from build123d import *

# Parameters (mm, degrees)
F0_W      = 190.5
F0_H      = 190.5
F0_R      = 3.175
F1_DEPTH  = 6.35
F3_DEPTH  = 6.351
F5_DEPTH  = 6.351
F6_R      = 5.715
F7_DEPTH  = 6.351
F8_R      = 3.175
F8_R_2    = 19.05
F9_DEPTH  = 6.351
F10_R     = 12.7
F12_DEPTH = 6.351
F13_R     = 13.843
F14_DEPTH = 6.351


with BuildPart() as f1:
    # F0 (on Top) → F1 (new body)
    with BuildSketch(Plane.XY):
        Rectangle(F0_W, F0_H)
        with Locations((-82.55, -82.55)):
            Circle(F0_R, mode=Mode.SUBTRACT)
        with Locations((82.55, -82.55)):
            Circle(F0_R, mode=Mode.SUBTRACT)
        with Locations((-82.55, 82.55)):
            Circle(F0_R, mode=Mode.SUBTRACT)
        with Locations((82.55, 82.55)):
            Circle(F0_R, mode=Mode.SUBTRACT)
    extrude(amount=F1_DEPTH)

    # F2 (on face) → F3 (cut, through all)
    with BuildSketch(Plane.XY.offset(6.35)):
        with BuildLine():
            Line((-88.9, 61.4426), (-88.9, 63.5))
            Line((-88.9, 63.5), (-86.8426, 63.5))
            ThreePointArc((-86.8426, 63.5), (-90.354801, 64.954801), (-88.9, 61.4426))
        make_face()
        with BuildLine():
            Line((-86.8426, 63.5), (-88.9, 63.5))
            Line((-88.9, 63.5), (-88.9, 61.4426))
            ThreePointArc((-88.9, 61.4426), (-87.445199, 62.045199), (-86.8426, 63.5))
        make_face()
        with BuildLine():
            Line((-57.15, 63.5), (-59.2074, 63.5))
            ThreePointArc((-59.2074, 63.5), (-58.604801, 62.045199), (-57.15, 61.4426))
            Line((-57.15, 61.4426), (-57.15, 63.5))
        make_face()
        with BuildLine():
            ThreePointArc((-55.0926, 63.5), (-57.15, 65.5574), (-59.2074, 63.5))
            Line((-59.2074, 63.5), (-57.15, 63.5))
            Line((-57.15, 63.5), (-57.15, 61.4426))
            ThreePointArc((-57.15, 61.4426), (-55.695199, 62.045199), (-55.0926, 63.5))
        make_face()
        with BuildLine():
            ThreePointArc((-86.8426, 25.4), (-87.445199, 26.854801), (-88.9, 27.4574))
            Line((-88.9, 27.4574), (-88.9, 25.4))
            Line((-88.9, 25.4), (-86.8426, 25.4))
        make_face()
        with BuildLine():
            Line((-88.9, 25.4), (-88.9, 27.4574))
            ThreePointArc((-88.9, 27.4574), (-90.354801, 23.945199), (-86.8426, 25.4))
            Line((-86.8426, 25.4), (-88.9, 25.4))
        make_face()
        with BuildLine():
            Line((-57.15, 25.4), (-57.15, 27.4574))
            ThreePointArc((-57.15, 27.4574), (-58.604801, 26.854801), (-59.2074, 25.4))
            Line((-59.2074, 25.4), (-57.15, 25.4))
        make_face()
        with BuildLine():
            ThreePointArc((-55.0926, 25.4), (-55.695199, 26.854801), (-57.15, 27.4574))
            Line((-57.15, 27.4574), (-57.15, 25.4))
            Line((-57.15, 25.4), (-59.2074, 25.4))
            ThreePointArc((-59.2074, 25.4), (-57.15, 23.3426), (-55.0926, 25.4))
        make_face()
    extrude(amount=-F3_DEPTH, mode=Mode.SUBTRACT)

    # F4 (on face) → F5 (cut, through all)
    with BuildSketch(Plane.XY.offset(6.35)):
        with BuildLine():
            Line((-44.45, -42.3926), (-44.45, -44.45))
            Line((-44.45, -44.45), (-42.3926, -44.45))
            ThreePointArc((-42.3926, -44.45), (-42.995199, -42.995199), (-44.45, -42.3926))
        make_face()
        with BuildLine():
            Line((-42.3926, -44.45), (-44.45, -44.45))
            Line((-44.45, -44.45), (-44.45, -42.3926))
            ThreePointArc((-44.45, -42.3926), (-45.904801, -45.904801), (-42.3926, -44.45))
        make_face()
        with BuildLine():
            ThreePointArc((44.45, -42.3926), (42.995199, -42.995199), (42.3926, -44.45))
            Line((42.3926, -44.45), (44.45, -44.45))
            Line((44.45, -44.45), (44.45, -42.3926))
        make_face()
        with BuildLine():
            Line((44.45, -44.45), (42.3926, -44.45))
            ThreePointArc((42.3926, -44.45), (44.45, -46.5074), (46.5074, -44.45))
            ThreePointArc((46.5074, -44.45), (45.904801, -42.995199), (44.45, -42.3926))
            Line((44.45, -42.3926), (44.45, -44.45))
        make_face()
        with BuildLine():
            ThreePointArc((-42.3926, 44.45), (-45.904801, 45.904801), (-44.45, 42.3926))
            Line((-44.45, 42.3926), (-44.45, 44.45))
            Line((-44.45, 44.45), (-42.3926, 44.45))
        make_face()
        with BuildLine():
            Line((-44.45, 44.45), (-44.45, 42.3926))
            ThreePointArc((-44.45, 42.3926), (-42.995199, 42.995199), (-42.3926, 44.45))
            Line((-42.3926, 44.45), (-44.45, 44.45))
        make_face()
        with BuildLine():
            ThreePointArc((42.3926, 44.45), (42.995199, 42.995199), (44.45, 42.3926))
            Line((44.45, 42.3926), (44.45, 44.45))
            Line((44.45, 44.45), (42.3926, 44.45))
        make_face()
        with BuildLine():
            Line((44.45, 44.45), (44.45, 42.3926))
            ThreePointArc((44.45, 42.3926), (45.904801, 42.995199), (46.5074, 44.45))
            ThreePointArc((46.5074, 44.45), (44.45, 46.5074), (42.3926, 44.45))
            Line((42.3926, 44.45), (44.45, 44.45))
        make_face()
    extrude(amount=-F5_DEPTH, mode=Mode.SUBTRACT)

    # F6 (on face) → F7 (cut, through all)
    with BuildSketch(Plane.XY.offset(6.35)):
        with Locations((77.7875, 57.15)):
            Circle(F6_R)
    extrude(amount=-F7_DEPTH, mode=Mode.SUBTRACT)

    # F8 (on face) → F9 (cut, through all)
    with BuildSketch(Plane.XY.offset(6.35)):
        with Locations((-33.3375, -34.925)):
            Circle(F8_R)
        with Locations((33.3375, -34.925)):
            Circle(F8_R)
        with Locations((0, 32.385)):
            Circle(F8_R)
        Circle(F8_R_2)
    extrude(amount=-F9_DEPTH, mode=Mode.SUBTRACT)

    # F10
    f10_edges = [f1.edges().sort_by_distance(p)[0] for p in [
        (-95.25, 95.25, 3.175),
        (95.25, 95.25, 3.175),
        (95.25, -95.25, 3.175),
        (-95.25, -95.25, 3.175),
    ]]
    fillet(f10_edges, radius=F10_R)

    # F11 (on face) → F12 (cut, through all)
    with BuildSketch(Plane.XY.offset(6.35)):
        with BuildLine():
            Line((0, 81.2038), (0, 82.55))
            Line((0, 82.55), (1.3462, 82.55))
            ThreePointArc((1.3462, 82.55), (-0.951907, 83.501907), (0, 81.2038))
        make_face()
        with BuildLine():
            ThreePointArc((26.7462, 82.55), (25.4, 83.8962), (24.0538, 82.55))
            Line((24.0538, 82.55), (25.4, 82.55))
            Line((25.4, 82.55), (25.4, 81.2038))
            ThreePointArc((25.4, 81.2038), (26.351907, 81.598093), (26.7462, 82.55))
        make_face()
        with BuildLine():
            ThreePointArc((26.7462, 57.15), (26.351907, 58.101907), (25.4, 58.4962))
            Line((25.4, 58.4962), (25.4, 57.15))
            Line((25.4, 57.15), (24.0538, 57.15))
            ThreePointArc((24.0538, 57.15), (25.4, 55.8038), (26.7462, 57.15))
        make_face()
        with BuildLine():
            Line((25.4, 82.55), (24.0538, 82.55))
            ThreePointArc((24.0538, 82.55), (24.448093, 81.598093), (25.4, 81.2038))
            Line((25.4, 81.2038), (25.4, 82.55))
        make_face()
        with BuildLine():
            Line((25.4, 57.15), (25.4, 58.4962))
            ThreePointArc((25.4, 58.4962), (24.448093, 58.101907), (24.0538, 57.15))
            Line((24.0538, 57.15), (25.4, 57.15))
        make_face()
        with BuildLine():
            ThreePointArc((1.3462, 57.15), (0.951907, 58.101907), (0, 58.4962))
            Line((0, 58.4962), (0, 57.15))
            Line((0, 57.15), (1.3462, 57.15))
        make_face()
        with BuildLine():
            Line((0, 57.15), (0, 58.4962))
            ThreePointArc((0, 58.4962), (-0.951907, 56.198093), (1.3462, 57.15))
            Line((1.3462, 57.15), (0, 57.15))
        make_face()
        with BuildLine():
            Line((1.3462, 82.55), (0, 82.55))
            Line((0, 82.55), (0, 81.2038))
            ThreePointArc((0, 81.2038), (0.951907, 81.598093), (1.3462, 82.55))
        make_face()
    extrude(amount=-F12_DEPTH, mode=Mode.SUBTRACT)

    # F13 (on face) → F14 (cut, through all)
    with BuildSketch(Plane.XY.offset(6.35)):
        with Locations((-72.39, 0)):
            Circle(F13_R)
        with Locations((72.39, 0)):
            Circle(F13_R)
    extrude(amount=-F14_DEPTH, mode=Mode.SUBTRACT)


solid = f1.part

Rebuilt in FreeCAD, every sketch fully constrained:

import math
import FreeCAD as App
import Part
import Sketcher
Q = App.Units.Quantity


def edges_at(feature, points):
    """Names of the edges that pass closest to the given points."""
    edges = feature.Shape.Edges
    near = lambda p: min(range(len(edges)), key=lambda i: edges[i].distToShape(Part.Vertex(*p))[0])
    return sorted({f"Edge{near(p) + 1}" for p in points})


def add_polygon(sketch, points):
    """Adds a closed chain of lines whose ends are joined by coincident constraints."""
    first, n = sketch.GeometryCount, len(points)
    for a, b in zip(points, points[1:] + points[:1]):
        sketch.addGeometry(Part.LineSegment(App.Vector(*a, 0), App.Vector(*b, 0)), False)
    for i in range(n):
        sketch.addConstraint(Sketcher.Constraint("Coincident", first + i, 2, first + (i + 1) % n, 1))

doc = App.newDocument("Part")
body = doc.addObject("PartDesign::Body", "Body")

sketch1 = body.newObject("Sketcher::SketchObject", "Sketch")
sketch1.AttachmentSupport = (doc.getObject("XY_Plane"), [""])
sketch1.MapMode = "FlatFace"
add_polygon(sketch1, [(-95.2, 95.2), (-95.2, -95.2), (95.2, -95.2), (95.2, 95.2)])
sketch1.addGeometry(Part.Circle(App.Vector(-82.5, -82.5, 0), App.Vector(0, 0, 1), 3.2), False)
sketch1.addGeometry(Part.Circle(App.Vector(82.5, -82.5, 0), App.Vector(0, 0, 1), 3.2), False)
sketch1.addGeometry(Part.Circle(App.Vector(-82.5, 82.5, 0), App.Vector(0, 0, 1), 3.2), False)
sketch1.addGeometry(Part.Circle(App.Vector(82.5, 82.5, 0), App.Vector(0, 0, 1), 3.2), False)
sketch1.addConstraint(Sketcher.Constraint("Vertical", 0))
sketch1.addConstraint(Sketcher.Constraint("Horizontal", 1))
sketch1.addConstraint(Sketcher.Constraint("Vertical", 2))
sketch1.addConstraint(Sketcher.Constraint("Horizontal", 3))
sketch1.addConstraint(Sketcher.Constraint("Equal", 4, 5))
sketch1.addConstraint(Sketcher.Constraint("Equal", 5, 6))
sketch1.addConstraint(Sketcher.Constraint("Equal", 6, 7))
sketch1.addConstraint(Sketcher.Constraint("Symmetric", 5, 3, 6, 3, -1, 1))
sketch1.addConstraint(Sketcher.Constraint("Symmetric", 4, 3, 7, 3, -1, 1))
sketch1.addConstraint(Sketcher.Constraint("Symmetric", 0, 2, 2, 2, -1, 1))
sketch1.addConstraint(Sketcher.Constraint("Symmetric", 4, 3, 5, 3, -2))
sketch1.addConstraint(Sketcher.Constraint("Equal", 3, 0))
sketch1.addConstraint(Sketcher.Constraint("Diameter", 4, Q("0.25 in")))
sketch1.addConstraint(Sketcher.Constraint("DistanceX", 1, 1, 1, 2, Q("7.5 in")))
sketch1.addConstraint(Sketcher.Constraint("DistanceX", 0, 2, 5, 3, Q("7 in")))
sketch1.addConstraint(Sketcher.Constraint("DistanceY", 0, 2, 6, 3, Q("7 in")))
pad1 = body.newObject("PartDesign::Pad", "Pad")
pad1.Profile = sketch1
pad1.Length = Q("0.25 in")

sketch2 = body.newObject("Sketcher::SketchObject", "Sketch001")
sketch2.AttachmentSupport = (doc.getObject("XY_Plane"), [""])
sketch2.MapMode = "FlatFace"
sketch2.AttachmentOffset = App.Placement(App.Vector(0, 0, 0.25 * 25.4), App.Rotation())
sketch2.addGeometry(Part.ArcOfCircle(Part.Circle(App.Vector(-88.9, 63.5, 0), App.Vector(0, 0, 1), 2.1), math.radians(0), math.radians(270)), False)
sketch2.addGeometry(Part.ArcOfCircle(Part.Circle(App.Vector(-88.9, 63.5, 0), App.Vector(0, 0, 1), 2.1), math.radians(-90), math.radians(0)), False)
sketch2.addGeometry(Part.ArcOfCircle(Part.Circle(App.Vector(-57.1, 63.5, 0), App.Vector(0, 0, 1), 2.1), math.radians(-180), math.radians(-90)), False)
sketch2.addGeometry(Part.ArcOfCircle(Part.Circle(App.Vector(-57.2, 63.5, 0), App.Vector(0, 0, 1), 2.1), math.radians(-90), math.radians(0)), False)
sketch2.addGeometry(Part.ArcOfCircle(Part.Circle(App.Vector(-57.1, 63.5, 0), App.Vector(0, 0, 1), 2.1), math.radians(0), math.radians(180)), False)
sketch2.addGeometry(Part.ArcOfCircle(Part.Circle(App.Vector(-88.9, 25.4, 0), App.Vector(0, 0, 1), 2.1), math.radians(0), math.radians(90)), False)
sketch2.addGeometry(Part.ArcOfCircle(Part.Circle(App.Vector(-88.9, 25.4, 0), App.Vector(0, 0, 1), 2.1), math.radians(90), math.radians(360)), False)
sketch2.addGeometry(Part.ArcOfCircle(Part.Circle(App.Vector(-57.1, 25.4, 0), App.Vector(0, 0, 1), 2.1), math.radians(90), math.radians(180)), False)
sketch2.addGeometry(Part.ArcOfCircle(Part.Circle(App.Vector(-57.1, 25.4, 0), App.Vector(0, 0, 1), 2.1), math.radians(180), math.radians(360)), False)
sketch2.addGeometry(Part.ArcOfCircle(Part.Circle(App.Vector(-57.2, 25.4, 0), App.Vector(0, 0, 1), 2.1), math.radians(0), math.radians(90)), False)
sketch2.addConstraint(Sketcher.Constraint("Tangent", 0, 1, 1, 2))
sketch2.addConstraint(Sketcher.Constraint("Coincident", 1, 1, 0, 2))
sketch2.addConstraint(Sketcher.Constraint("Tangent", 2, 2, 3, 1))
sketch2.addConstraint(Sketcher.Constraint("Tangent", 3, 2, 4, 1))
sketch2.addConstraint(Sketcher.Constraint("Tangent", 4, 2, 2, 1))
sketch2.addConstraint(Sketcher.Constraint("Tangent", 5, 1, 6, 2))
sketch2.addConstraint(Sketcher.Constraint("Coincident", 6, 1, 5, 2))
sketch2.addConstraint(Sketcher.Constraint("Tangent", 7, 2, 8, 1))
sketch2.addConstraint(Sketcher.Constraint("Tangent", 8, 2, 9, 1))
sketch2.addConstraint(Sketcher.Constraint("Tangent", 9, 2, 7, 1))
sketch2.addConstraint(Sketcher.Constraint("Equal", 1, 2))
sketch2.addConstraint(Sketcher.Constraint("Equal", 4, 5))
sketch2.addConstraint(Sketcher.Constraint("Equal", 6, 7))
sketch2.addConstraint(Sketcher.Constraint("Horizontal", 1, 3, 2, 3))
sketch2.addConstraint(Sketcher.Constraint("Horizontal", 6, 3, 7, 3))
sketch2.addConstraint(Sketcher.Constraint("Horizontal", 4, 3, 0, 1))
sketch2.addConstraint(Sketcher.Constraint("Horizontal", 0, 1, 3, 2))
sketch2.addConstraint(Sketcher.Constraint("Horizontal", 3, 2, 4, 2))
sketch2.addConstraint(Sketcher.Constraint("Horizontal", 9, 3, 5, 1))
sketch2.addConstraint(Sketcher.Constraint("Horizontal", 5, 1, 7, 2))
sketch2.addConstraint(Sketcher.Constraint("Horizontal", 7, 2, 8, 2))
sketch2.addConstraint(Sketcher.Constraint("Vertical", 1, 3, 5, 3))
sketch2.addConstraint(Sketcher.Constraint("Vertical", 4, 3, 7, 3))
sketch2.addConstraint(Sketcher.Constraint("Vertical", 6, 3, 1, 1))
sketch2.addConstraint(Sketcher.Constraint("Vertical", 9, 3, 2, 2))
sketch2.addConstraint(Sketcher.Constraint("Vertical", 1, 1, 6, 1))
sketch2.addConstraint(Sketcher.Constraint("Vertical", 2, 2, 9, 2))
sketch2.addConstraint(Sketcher.Constraint("DistanceY", -1, 1, 5, 3, Q("0.9999999 in")))
sketch2.addConstraint(Sketcher.Constraint("Radius", 0, Q("0.081 in")))
sketch2.addConstraint(Sketcher.Constraint("DistanceX", 0, 3, -1, 1, Q("3.5 in")))
sketch2.addConstraint(Sketcher.Constraint("DistanceY", -1, 1, 0, 3, Q("2.5 in")))
sketch2.addConstraint(Sketcher.Constraint("DistanceX", 2, 3, -1, 1, Q("2.2499999 in")))
pocket1 = body.newObject("PartDesign::Pocket", "Pocket")
pocket1.Profile = sketch2
pocket1.Type = "ThroughAll"

sketch3 = body.newObject("Sketcher::SketchObject", "Sketch002")
sketch3.AttachmentSupport = (doc.getObject("XY_Plane"), [""])
sketch3.MapMode = "FlatFace"
sketch3.AttachmentOffset = App.Placement(App.Vector(0, 0, 0.25 * 25.4), App.Rotation())
sketch3.addGeometry(Part.ArcOfCircle(Part.Circle(App.Vector(-44.5, -44.5, 0), App.Vector(0, 0, 1), 2.1), math.radians(0), math.radians(90)), False)
sketch3.addGeometry(Part.ArcOfCircle(Part.Circle(App.Vector(-44.4, -44.4, 0), App.Vector(0, 0, 1), 2.1), math.radians(90), math.radians(360)), False)
sketch3.addGeometry(Part.ArcOfCircle(Part.Circle(App.Vector(44.5, -44.5, 0), App.Vector(0, 0, 1), 2.1), math.radians(90), math.radians(180)), False)
sketch3.addGeometry(Part.ArcOfCircle(Part.Circle(App.Vector(44.5, -44.5, 0), App.Vector(0, 0, 1), 2.1), math.radians(180), math.radians(360)), False)
sketch3.addGeometry(Part.ArcOfCircle(Part.Circle(App.Vector(44.4, -44.5, 0), App.Vector(0, 0, 1), 2.1), math.radians(0), math.radians(90)), False)
sketch3.addGeometry(Part.ArcOfCircle(Part.Circle(App.Vector(-44.4, 44.4, 0), App.Vector(0, 0, 1), 2.1), math.radians(0), math.radians(270)), False)
sketch3.addGeometry(Part.ArcOfCircle(Part.Circle(App.Vector(-44.5, 44.5, 0), App.Vector(0, 0, 1), 2.1), math.radians(-90), math.radians(0)), False)
sketch3.addGeometry(Part.ArcOfCircle(Part.Circle(App.Vector(44.5, 44.5, 0), App.Vector(0, 0, 1), 2.1), math.radians(-180), math.radians(-90)), False)
sketch3.addGeometry(Part.ArcOfCircle(Part.Circle(App.Vector(44.4, 44.5, 0), App.Vector(0, 0, 1), 2.1), math.radians(-90), math.radians(0)), False)
sketch3.addGeometry(Part.ArcOfCircle(Part.Circle(App.Vector(44.5, 44.5, 0), App.Vector(0, 0, 1), 2.1), math.radians(0), math.radians(180)), False)
sketch3.addConstraint(Sketcher.Constraint("Tangent", 0, 1, 1, 2))
sketch3.addConstraint(Sketcher.Constraint("Coincident", 1, 1, 0, 2))
sketch3.addConstraint(Sketcher.Constraint("Tangent", 2, 2, 3, 1))
sketch3.addConstraint(Sketcher.Constraint("Tangent", 3, 2, 4, 1))
sketch3.addConstraint(Sketcher.Constraint("Tangent", 4, 2, 2, 1))
sketch3.addConstraint(Sketcher.Constraint("Tangent", 5, 1, 6, 2))
sketch3.addConstraint(Sketcher.Constraint("Coincident", 6, 1, 5, 2))
sketch3.addConstraint(Sketcher.Constraint("Tangent", 7, 2, 8, 1))
sketch3.addConstraint(Sketcher.Constraint("Tangent", 8, 2, 9, 1))
sketch3.addConstraint(Sketcher.Constraint("Tangent", 9, 2, 7, 1))
sketch3.addConstraint(Sketcher.Constraint("Equal", 1, 2))
sketch3.addConstraint(Sketcher.Constraint("Equal", 4, 5))
sketch3.addConstraint(Sketcher.Constraint("Equal", 6, 7))
sketch3.addConstraint(Sketcher.Constraint("Symmetric", 2, 3, 5, 3, -1, 1))
sketch3.addConstraint(Sketcher.Constraint("Symmetric", 0, 3, 7, 3, -1, 1))
sketch3.addConstraint(Sketcher.Constraint("Symmetric", 0, 3, 2, 3, -2))
sketch3.addConstraint(Sketcher.Constraint("Horizontal", 4, 3, 0, 1))
sketch3.addConstraint(Sketcher.Constraint("Horizontal", 0, 1, 2, 2))
sketch3.addConstraint(Sketcher.Constraint("Horizontal", 2, 2, 3, 2))
sketch3.addConstraint(Sketcher.Constraint("Horizontal", 9, 3, 5, 1))
sketch3.addConstraint(Sketcher.Constraint("Horizontal", 5, 1, 8, 2))
sketch3.addConstraint(Sketcher.Constraint("Horizontal", 8, 2, 9, 2))
sketch3.addConstraint(Sketcher.Constraint("Vertical", 6, 3, 1, 1))
sketch3.addConstraint(Sketcher.Constraint("Vertical", 9, 3, 4, 2))
sketch3.addConstraint(Sketcher.Constraint("Vertical", 1, 1, 6, 1))
sketch3.addConstraint(Sketcher.Constraint("Vertical", 4, 2, 7, 2))
sketch3.addConstraint(Sketcher.Constraint("Radius", 0, Q("0.0810001 in")))
sketch3.addConstraint(Sketcher.Constraint("DistanceX", 1, 3, 2, 3, Q("3.5000001 in")))
sketch3.addConstraint(Sketcher.Constraint("DistanceY", 1, 3, 5, 3, Q("3.5 in")))
pocket2 = body.newObject("PartDesign::Pocket", "Pocket001")
pocket2.Profile = sketch3
pocket2.Type = "ThroughAll"

sketch4 = body.newObject("Sketcher::SketchObject", "Sketch003")
sketch4.AttachmentSupport = (doc.getObject("XY_Plane"), [""])
sketch4.MapMode = "FlatFace"
sketch4.AttachmentOffset = App.Placement(App.Vector(0, 0, 0.25 * 25.4), App.Rotation())
sketch4.addGeometry(Part.Circle(App.Vector(78, 57, 0), App.Vector(0, 0, 1), 6), False)
sketch4.addConstraint(Sketcher.Constraint("Diameter", 0, Q("0.45 in")))
sketch4.addConstraint(Sketcher.Constraint("DistanceY", -1, 1, 0, 3, Q("2.25 in")))
sketch4.addConstraint(Sketcher.Constraint("DistanceX", -1, 1, 0, 3, Q("3.0625 in")))
pocket3 = body.newObject("PartDesign::Pocket", "Pocket002")
pocket3.Profile = sketch4
pocket3.Type = "ThroughAll"

sketch5 = body.newObject("Sketcher::SketchObject", "Sketch004")
sketch5.AttachmentSupport = (doc.getObject("XY_Plane"), [""])
sketch5.MapMode = "FlatFace"
sketch5.AttachmentOffset = App.Placement(App.Vector(0, 0, 0.25 * 25.4), App.Rotation())
sketch5.addGeometry(Part.Circle(App.Vector(-33.3, -34.9, 0), App.Vector(0, 0, 1), 3.2), False)
sketch5.addGeometry(Part.Circle(App.Vector(33.3, -34.9, 0), App.Vector(0, 0, 1), 3.2), False)
sketch5.addGeometry(Part.Circle(App.Vector(0, 32.4, 0), App.Vector(0, 0, 1), 3.2), False)
sketch5.addGeometry(Part.Circle(App.Vector(0, 0, 0), App.Vector(0, 0, 1), 19.1), False)
sketch5.addConstraint(Sketcher.Constraint("Coincident", 3, 3, -1, 1))
sketch5.addConstraint(Sketcher.Constraint("Equal", 0, 1))
sketch5.addConstraint(Sketcher.Constraint("Equal", 1, 2))
sketch5.addConstraint(Sketcher.Constraint("Symmetric", 0, 3, 1, 3, -2))
sketch5.addConstraint(Sketcher.Constraint("PointOnObject", 2, 3, -2))
sketch5.addConstraint(Sketcher.Constraint("Diameter", 3, Q("1.5 in")))
sketch5.addConstraint(Sketcher.Constraint("Diameter", 0, Q("0.25 in")))
sketch5.addConstraint(Sketcher.Constraint("DistanceY", 0, 3, 2, 3, Q("2.65 in")))
sketch5.addConstraint(Sketcher.Constraint("DistanceX", 0, 3, -1, 1, Q("1.3125 in")))
sketch5.addConstraint(Sketcher.Constraint("DistanceY", 0, 3, -1, 1, Q("1.375 in")))
pocket4 = body.newObject("PartDesign::Pocket", "Pocket003")
pocket4.Profile = sketch5
pocket4.Type = "ThroughAll"
doc.recompute()

fillet = body.newObject("PartDesign::Fillet", "Fillet")
fillet.Base = (pocket4, edges_at(pocket4, [
    (-95.25, 95.25, 3.175),
    (95.25, 95.25, 3.175),
    (95.25, -95.25, 3.175),
    (-95.25, -95.25, 3.175),
]))
fillet.Radius = Q("0.5 in")

sketch6 = body.newObject("Sketcher::SketchObject", "Sketch005")
sketch6.AttachmentSupport = (doc.getObject("XY_Plane"), [""])
sketch6.MapMode = "FlatFace"
sketch6.AttachmentOffset = App.Placement(App.Vector(0, 0, 0.25 * 25.4), App.Rotation())
sketch6.addGeometry(Part.ArcOfCircle(Part.Circle(App.Vector(0, 82.5, 0), App.Vector(0, 0, 1), 1.3), math.radians(0), math.radians(270)), False)
sketch6.addGeometry(Part.ArcOfCircle(Part.Circle(App.Vector(0, 82.6, 0), App.Vector(0, 0, 1), 1.3), math.radians(-90), math.radians(0)), False)
sketch6.addGeometry(Part.ArcOfCircle(Part.Circle(App.Vector(25.4, 82.5, 0), App.Vector(0, 0, 1), 1.3), math.radians(0), math.radians(180)), False)
sketch6.addGeometry(Part.ArcOfCircle(Part.Circle(App.Vector(25.4, 82.6, 0), App.Vector(0, 0, 1), 1.3), math.radians(-180), math.radians(-90)), False)
sketch6.addGeometry(Part.ArcOfCircle(Part.Circle(App.Vector(25.4, 82.6, 0), App.Vector(0, 0, 1), 1.3), math.radians(-90), math.radians(0)), False)
sketch6.addGeometry(Part.ArcOfCircle(Part.Circle(App.Vector(25.4, 57.1, 0), App.Vector(0, 0, 1), 1.3), math.radians(0), math.radians(90)), False)
sketch6.addGeometry(Part.ArcOfCircle(Part.Circle(App.Vector(25.4, 57.1, 0), App.Vector(0, 0, 1), 1.3), math.radians(90), math.radians(180)), False)
sketch6.addGeometry(Part.ArcOfCircle(Part.Circle(App.Vector(25.4, 57.1, 0), App.Vector(0, 0, 1), 1.3), math.radians(180), math.radians(360)), False)
sketch6.addGeometry(Part.ArcOfCircle(Part.Circle(App.Vector(0, 57.1, 0), App.Vector(0, 0, 1), 1.3), math.radians(0), math.radians(90)), False)
sketch6.addGeometry(Part.ArcOfCircle(Part.Circle(App.Vector(0, 57.2, 0), App.Vector(0, 0, 1), 1.3), math.radians(90), math.radians(360)), False)
sketch6.addConstraint(Sketcher.Constraint("Tangent", 0, 1, 1, 2))
sketch6.addConstraint(Sketcher.Constraint("Coincident", 1, 1, 0, 2))
sketch6.addConstraint(Sketcher.Constraint("Tangent", 2, 2, 3, 1))
sketch6.addConstraint(Sketcher.Constraint("Tangent", 3, 2, 4, 1))
sketch6.addConstraint(Sketcher.Constraint("Tangent", 4, 2, 2, 1))
sketch6.addConstraint(Sketcher.Constraint("Tangent", 5, 2, 6, 1))
sketch6.addConstraint(Sketcher.Constraint("Tangent", 6, 2, 7, 1))
sketch6.addConstraint(Sketcher.Constraint("Tangent", 7, 2, 5, 1))
sketch6.addConstraint(Sketcher.Constraint("Tangent", 8, 1, 9, 2))
sketch6.addConstraint(Sketcher.Constraint("Coincident", 9, 1, 8, 2))
sketch6.addConstraint(Sketcher.Constraint("Equal", 1, 2))
sketch6.addConstraint(Sketcher.Constraint("Equal", 4, 5))
sketch6.addConstraint(Sketcher.Constraint("Equal", 7, 8))
sketch6.addConstraint(Sketcher.Constraint("PointOnObject", 0, 3, -2))
sketch6.addConstraint(Sketcher.Constraint("PointOnObject", 8, 3, -2))
sketch6.addConstraint(Sketcher.Constraint("PointOnObject", 1, 1, -2))
sketch6.addConstraint(Sketcher.Constraint("PointOnObject", 9, 1, -2))
sketch6.addConstraint(Sketcher.Constraint("Horizontal", 1, 3, 2, 3))
sketch6.addConstraint(Sketcher.Constraint("Horizontal", 7, 3, 8, 3))
sketch6.addConstraint(Sketcher.Constraint("Horizontal", 4, 3, 0, 1))
sketch6.addConstraint(Sketcher.Constraint("Horizontal", 0, 1, 2, 2))
sketch6.addConstraint(Sketcher.Constraint("Horizontal", 2, 2, 4, 2))
sketch6.addConstraint(Sketcher.Constraint("Horizontal", 9, 3, 6, 2))
sketch6.addConstraint(Sketcher.Constraint("Horizontal", 6, 2, 7, 2))
sketch6.addConstraint(Sketcher.Constraint("Horizontal", 7, 2, 8, 1))
sketch6.addConstraint(Sketcher.Constraint("Vertical", 4, 3, 5, 3))
sketch6.addConstraint(Sketcher.Constraint("Vertical", 7, 3, 3, 2))
sketch6.addConstraint(Sketcher.Constraint("Vertical", 3, 2, 5, 2))
sketch6.addConstraint(Sketcher.Constraint("DistanceX", -1, 1, 2, 3, Q("1 in")))
sketch6.addConstraint(Sketcher.Constraint("Radius", 0, Q("0.053 in")))
sketch6.addConstraint(Sketcher.Constraint("DistanceY", 5, 3, 2, 3, Q("1 in")))
sketch6.addConstraint(Sketcher.Constraint("DistanceY", -1, 1, 0, 3, Q("3.25 in")))
pocket5 = body.newObject("PartDesign::Pocket", "Pocket004")
pocket5.Profile = sketch6
pocket5.Type = "ThroughAll"

sketch7 = body.newObject("Sketcher::SketchObject", "Sketch006")
sketch7.AttachmentSupport = (doc.getObject("XY_Plane"), [""])
sketch7.MapMode = "FlatFace"
sketch7.AttachmentOffset = App.Placement(App.Vector(0, 0, 0.25 * 25.4), App.Rotation())
sketch7.addGeometry(Part.Circle(App.Vector(-72, 0, 0), App.Vector(0, 0, 1), 14), False)
sketch7.addGeometry(Part.Circle(App.Vector(72, 0, 0), App.Vector(0, 0, 1), 14), False)
sketch7.addConstraint(Sketcher.Constraint("Equal", 0, 1))
sketch7.addConstraint(Sketcher.Constraint("Symmetric", 0, 3, 1, 3, -1, 1))
sketch7.addConstraint(Sketcher.Constraint("PointOnObject", 0, 3, -1))
sketch7.addConstraint(Sketcher.Constraint("Diameter", 0, Q("1.09 in")))
sketch7.addConstraint(Sketcher.Constraint("DistanceX", 0, 3, 1, 3, Q("5.7 in")))
pocket6 = body.newObject("PartDesign::Pocket", "Pocket005")
pocket6.Profile = sketch7
pocket6.Type = "ThroughAll"

doc.recompute()
